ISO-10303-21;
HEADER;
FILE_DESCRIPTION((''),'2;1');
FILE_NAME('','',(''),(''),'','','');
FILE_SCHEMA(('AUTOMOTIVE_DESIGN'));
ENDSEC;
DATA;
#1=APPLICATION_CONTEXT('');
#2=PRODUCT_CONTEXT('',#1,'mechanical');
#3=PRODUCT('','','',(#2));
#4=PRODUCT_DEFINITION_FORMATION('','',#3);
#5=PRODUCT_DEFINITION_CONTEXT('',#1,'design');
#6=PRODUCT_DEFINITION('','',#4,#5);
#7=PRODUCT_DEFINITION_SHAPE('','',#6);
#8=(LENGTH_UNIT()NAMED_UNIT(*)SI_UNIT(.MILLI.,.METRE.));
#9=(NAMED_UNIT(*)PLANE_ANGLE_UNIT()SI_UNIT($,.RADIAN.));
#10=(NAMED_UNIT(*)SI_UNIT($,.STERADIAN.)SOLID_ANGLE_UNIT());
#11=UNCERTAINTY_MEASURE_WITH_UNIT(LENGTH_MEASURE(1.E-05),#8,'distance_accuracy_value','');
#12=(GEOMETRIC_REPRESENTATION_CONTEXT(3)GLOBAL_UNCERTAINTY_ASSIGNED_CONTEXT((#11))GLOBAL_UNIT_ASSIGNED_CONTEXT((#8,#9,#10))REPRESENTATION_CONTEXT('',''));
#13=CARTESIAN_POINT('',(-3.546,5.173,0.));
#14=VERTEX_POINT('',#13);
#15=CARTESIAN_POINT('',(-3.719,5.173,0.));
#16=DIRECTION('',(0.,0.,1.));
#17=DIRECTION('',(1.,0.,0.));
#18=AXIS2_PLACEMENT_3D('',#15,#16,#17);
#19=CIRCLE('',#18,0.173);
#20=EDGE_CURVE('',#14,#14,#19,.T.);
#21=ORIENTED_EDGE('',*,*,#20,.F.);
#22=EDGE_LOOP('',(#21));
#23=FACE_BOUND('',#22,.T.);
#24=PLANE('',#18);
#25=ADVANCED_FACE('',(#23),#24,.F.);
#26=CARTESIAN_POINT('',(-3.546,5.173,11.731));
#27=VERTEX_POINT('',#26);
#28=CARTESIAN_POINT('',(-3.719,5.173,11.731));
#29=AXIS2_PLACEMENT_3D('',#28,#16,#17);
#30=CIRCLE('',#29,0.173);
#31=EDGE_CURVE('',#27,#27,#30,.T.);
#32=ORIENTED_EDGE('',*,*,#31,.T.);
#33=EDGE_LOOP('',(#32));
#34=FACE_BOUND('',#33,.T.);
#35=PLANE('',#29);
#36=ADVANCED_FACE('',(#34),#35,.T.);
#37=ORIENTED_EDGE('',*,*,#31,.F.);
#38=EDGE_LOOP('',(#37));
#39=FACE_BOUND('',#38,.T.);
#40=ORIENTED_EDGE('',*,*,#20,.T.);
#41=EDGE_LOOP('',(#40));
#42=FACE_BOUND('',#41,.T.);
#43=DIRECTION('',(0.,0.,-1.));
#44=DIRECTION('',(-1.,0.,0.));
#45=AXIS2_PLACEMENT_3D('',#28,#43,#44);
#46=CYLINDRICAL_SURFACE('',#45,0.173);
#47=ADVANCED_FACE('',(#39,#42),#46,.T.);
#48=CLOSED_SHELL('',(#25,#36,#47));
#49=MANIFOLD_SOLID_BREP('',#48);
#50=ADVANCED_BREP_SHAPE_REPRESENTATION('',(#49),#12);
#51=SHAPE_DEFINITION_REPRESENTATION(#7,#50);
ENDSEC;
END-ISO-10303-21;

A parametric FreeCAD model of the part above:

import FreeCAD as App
import Part
import Sketcher
from FreeCAD import Vector
Q = App.Units.Quantity

doc = App.newDocument("Part")
body = doc.addObject("PartDesign::Body", "Body")

sketch1 = body.newObject("Sketcher::SketchObject", "Sketch")
sketch1.AttachmentSupport = (doc.getObject("XY_Plane"), [""])
sketch1.MapMode = "FlatFace"
sketch1.addGeometry(Part.Circle(Vector(-3.72, 5.17, 0), Vector(0, 0, 1), 0.17), False)
sketch1.addConstraint([
    Sketcher.Constraint("Diameter", 0, Q("0.346 mm")),
    Sketcher.Constraint("DistanceX", 0, 3, -1, 1, Q("3.719 mm")),
    Sketcher.Constraint("DistanceY", -1, 1, 0, 3, Q("5.173 mm")),
])
pad1 = body.newObject("PartDesign::Pad", "Pad")
pad1.Profile = sketch1
pad1.Length = 11.731

doc.recompute()
